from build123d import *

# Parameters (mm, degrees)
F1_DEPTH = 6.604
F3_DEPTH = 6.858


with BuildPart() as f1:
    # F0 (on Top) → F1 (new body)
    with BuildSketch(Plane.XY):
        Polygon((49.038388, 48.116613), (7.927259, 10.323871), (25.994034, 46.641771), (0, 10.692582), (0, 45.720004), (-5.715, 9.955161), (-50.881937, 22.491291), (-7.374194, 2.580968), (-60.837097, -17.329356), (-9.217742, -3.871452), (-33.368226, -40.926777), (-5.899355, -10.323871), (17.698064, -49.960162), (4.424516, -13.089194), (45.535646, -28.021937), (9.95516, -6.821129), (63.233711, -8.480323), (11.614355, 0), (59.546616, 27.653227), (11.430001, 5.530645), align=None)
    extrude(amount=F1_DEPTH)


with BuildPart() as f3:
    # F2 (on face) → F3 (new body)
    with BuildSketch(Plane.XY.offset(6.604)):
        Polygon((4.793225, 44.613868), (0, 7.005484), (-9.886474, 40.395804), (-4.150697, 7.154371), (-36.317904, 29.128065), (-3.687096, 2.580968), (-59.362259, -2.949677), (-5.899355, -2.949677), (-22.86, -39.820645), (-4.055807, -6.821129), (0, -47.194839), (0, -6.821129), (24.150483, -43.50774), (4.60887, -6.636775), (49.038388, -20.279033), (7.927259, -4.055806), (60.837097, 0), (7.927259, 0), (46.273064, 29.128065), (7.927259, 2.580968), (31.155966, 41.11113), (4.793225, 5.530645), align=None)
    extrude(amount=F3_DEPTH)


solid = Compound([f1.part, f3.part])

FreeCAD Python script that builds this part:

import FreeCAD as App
import Part
import Sketcher

V = App.Vector
Q = App.Units.Quantity

doc = App.newDocument("Part")
body = doc.addObject("PartDesign::Body", "Body")

# Sketch on XY plane
sketch1 = body.newObject("Sketcher::SketchObject", "Sketch")
sketch1.AttachmentSupport = (doc.getObject("XY_Plane"), [""])
sketch1.MapMode = "FlatFace"
sketch1.addGeometry([
    Part.LineSegment(V(49.038388, 48.116613, 0), V(7.927259, 10.323871, 0)),  # 0
    Part.LineSegment(V(7.927259, 10.323871, 0), V(25.994034, 46.641771, 0)),  # 1
    Part.LineSegment(V(25.994034, 46.641771, 0), V(0, 10.692582, 0)),  # 2
    Part.LineSegment(V(0, 10.692582, 0), V(0, 45.720004, 0)),  # 3
    Part.LineSegment(V(0, 45.720004, 0), V(-5.715, 9.955161, 0)),  # 4
    Part.LineSegment(V(-5.715, 9.955161, 0), V(-50.881937, 22.491291, 0)),  # 5
    Part.LineSegment(V(-50.881937, 22.491291, 0), V(-7.374194, 2.580968, 0)),  # 6
    Part.LineSegment(V(-7.374194, 2.580968, 0), V(-60.837097, -17.329356, 0)),  # 7
    Part.LineSegment(V(-60.837097, -17.329356, 0), V(-9.217742, -3.871452, 0)),  # 8
    Part.LineSegment(V(-9.217742, -3.871452, 0), V(-33.368226, -40.926777, 0)),  # 9
    Part.LineSegment(V(-33.368226, -40.926777, 0), V(-5.899355, -10.323871, 0)),  # 10
    Part.LineSegment(V(-5.899355, -10.323871, 0), V(17.698064, -49.960162, 0)),  # 11
    Part.LineSegment(V(17.698064, -49.960162, 0), V(4.424516, -13.089194, 0)),  # 12
    Part.LineSegment(V(4.424516, -13.089194, 0), V(45.535646, -28.021937, 0)),  # 13
    Part.LineSegment(V(45.535646, -28.021937, 0), V(9.95516, -6.821129, 0)),  # 14
    Part.LineSegment(V(9.95516, -6.821129, 0), V(63.233711, -8.480323, 0)),  # 15
    Part.LineSegment(V(63.233711, -8.480323, 0), V(11.614355, 0, 0)),  # 16
    Part.LineSegment(V(11.614355, 0, 0), V(59.546616, 27.653227, 0)),  # 17
    Part.LineSegment(V(59.546616, 27.653227, 0), V(11.430001, 5.530645, 0)),  # 18
    Part.LineSegment(V(11.430001, 5.530645, 0), V(49.038388, 48.116613, 0)),  # 19
], False)
sketch1.addConstraint([
    Sketcher.Constraint("Coincident", 0, 2, 1, 1),
    Sketcher.Constraint("Coincident", 1, 2, 2, 1),
    Sketcher.Constraint("Coincident", 2, 2, 3, 1),
    Sketcher.Constraint("Coincident", 3, 2, 4, 1),
    Sketcher.Constraint("Coincident", 4, 2, 5, 1),
    Sketcher.Constraint("Coincident", 5, 2, 6, 1),
    Sketcher.Constraint("Coincident", 6, 2, 7, 1),
    Sketcher.Constraint("Coincident", 7, 2, 8, 1),
    Sketcher.Constraint("Coincident", 8, 2, 9, 1),
    Sketcher.Constraint("Coincident", 9, 2, 10, 1),
    Sketcher.Constraint("Coincident", 10, 2, 11, 1),
    Sketcher.Constraint("Coincident", 11, 2, 12, 1),
    Sketcher.Constraint("Coincident", 12, 2, 13, 1),
    Sketcher.Constraint("Coincident", 13, 2, 14, 1),
    Sketcher.Constraint("Coincident", 14, 2, 15, 1),
    Sketcher.Constraint("Coincident", 15, 2, 16, 1),
    Sketcher.Constraint("Coincident", 16, 2, 17, 1),
    Sketcher.Constraint("Coincident", 17, 2, 18, 1),
    Sketcher.Constraint("Coincident", 18, 2, 19, 1),
    Sketcher.Constraint("Coincident", 19, 2, 0, 1),
    Sketcher.Constraint("Vertical", 3),
    Sketcher.Constraint("PointOnObject", 2, 2, -2),
    Sketcher.Constraint("PointOnObject", 16, 2, -1),
    Sketcher.Constraint("DistanceY", -1, 1, 3, 2, Q("1.8000002 in")),
    Sketcher.Constraint("DistanceX", -1, 1, 18, 2, Q("0.45 in")),
    Sketcher.Constraint("DistanceX", 4, 2, -1, 1, Q("0.225 in")),
    Sketcher.Constraint("DistanceX", 8, 2, 0, 2, Q("0.675 in")),
    Sketcher.Constraint("DistanceX", 10, 2, 13, 2, Q("2.025 in")),
    Sketcher.Constraint("DistanceY", 14, 2, 0, 2, Q("0.675 in")),
    Sketcher.Constraint("Distance", 19, Q("56.815099 mm")),
    Sketcher.Constraint("DistanceY", 0, 2, 1, 2, Q("36.3179 mm")),
    Sketcher.Constraint("DistanceX", 0, 2, 14, 2, Q("2.027901 mm")),
    Sketcher.Constraint("Distance", 0, Q("55.842782 mm")),
    Sketcher.Constraint("Distance", 1, Q("40.563508 mm")),
    Sketcher.Constraint("Distance", 2, Q("44.362529 mm")),
    Sketcher.Constraint("Distance", 8, Q("53.34485 mm")),
    Sketcher.Constraint("Distance", 11, Q("46.128882 mm")),
    Sketcher.Constraint("Distance", 12, Q("39.187439 mm")),
    Sketcher.Constraint("Distance", 15, Q("53.30438 mm")),
    Sketcher.Constraint("DistanceY", 3, 1, 3, 2, Q("35.027422 mm")),
    Sketcher.Constraint("DistanceX", -1, 1, 0, 2, Q("7.927259 mm")),
    Sketcher.Constraint("DistanceY", -1, 1, 4, 2, Q("9.955161 mm")),
    Sketcher.Constraint("DistanceY", -1, 1, 5, 2, Q("22.491291 mm")),
    Sketcher.Constraint("DistanceY", 10, 2, -1, 1, Q("10.323871 mm")),
    Sketcher.Constraint("DistanceY", 11, 2, -1, 1, Q("49.960162 mm")),
    Sketcher.Constraint("DistanceX", -1, 1, 15, 2, Q("63.233711 mm")),
    Sketcher.Constraint("DistanceX", 5, 2, 1, 2, Q("76.875971 mm")),
    Sketcher.Constraint("DistanceX", 7, 2, 5, 2, Q("9.95516 mm")),
    Sketcher.Constraint("DistanceY", 8, 2, 6, 2, Q("6.45242 mm")),
    Sketcher.Constraint("DistanceX", 7, 2, 9, 2, Q("27.468871 mm")),
    Sketcher.Constraint("DistanceY", 9, 2, 7, 2, Q("23.597421 mm")),
    Sketcher.Constraint("DistanceY", 9, 2, 4, 2, Q("50.881938 mm")),
    Sketcher.Constraint("DistanceX", 6, 2, 10, 2, Q("1.474839 mm")),
    Sketcher.Constraint("DistanceX", 9, 2, 11, 2, Q("51.06629 mm")),
    Sketcher.Constraint("DistanceX", 10, 2, 12, 2, Q("10.323871 mm")),
    Sketcher.Constraint("DistanceY", 13, 2, 0, 2, Q("38.345808 mm")),
    Sketcher.Constraint("DistanceX", 12, 2, 16, 2, Q("7.189839 mm")),
    Sketcher.Constraint("DistanceY", 15, 2, 17, 2, Q("36.13355 mm")),
    Sketcher.Constraint("DistanceX", 16, 2, 17, 2, Q("47.932261 mm")),
    Sketcher.Constraint("DistanceX", 19, 2, 17, 2, Q("10.508228 mm")),
])
pad1 = body.newObject("PartDesign::Pad", "Pad")
pad1.Profile = sketch1
pad1.Length = Q("0.26 in")
body2 = doc.addObject("PartDesign::Body", "Body001")

# Sketch on XY plane
sketch2 = body2.newObject("Sketcher::SketchObject", "Sketch001")
sketch2.AttachmentSupport = (doc.getObject("XY_Plane001"), [""])
sketch2.MapMode = "FlatFace"
sketch2.AttachmentOffset = App.Placement(V(0, 0, 0.26 * 25.4), App.Rotation())
sketch2.addGeometry([
    Part.LineSegment(V(4.793225, 44.613868, 0), V(0, 7.005484, 0)),  # 0
    Part.LineSegment(V(0, 7.005484, 0), V(-9.886474, 40.395804, 0)),  # 1
    Part.LineSegment(V(-9.886474, 40.395804, 0), V(-4.150697, 7.154371, 0)),  # 2
    Part.LineSegment(V(-4.150697, 7.154371, 0), V(-36.317904, 29.128065, 0)),  # 3
    Part.LineSegment(V(-36.317904, 29.128065, 0), V(-3.687096, 2.580968, 0)),  # 4
    Part.LineSegment(V(-3.687096, 2.580968, 0), V(-59.362259, -2.949677, 0)),  # 5
    Part.LineSegment(V(-59.362259, -2.949677, 0), V(-5.899355, -2.949677, 0)),  # 6
    Part.LineSegment(V(-5.899355, -2.949677, 0), V(-22.86, -39.820645, 0)),  # 7
    Part.LineSegment(V(-22.86, -39.820645, 0), V(-4.055807, -6.821129, 0)),  # 8
    Part.LineSegment(V(-4.055807, -6.821129, 0), V(0, -47.194839, 0)),  # 9
    Part.LineSegment(V(0, -47.194839, 0), V(0, -6.821129, 0)),  # 10
    Part.LineSegment(V(0, -6.821129, 0), V(24.150483, -43.50774, 0)),  # 11
    Part.LineSegment(V(24.150483, -43.50774, 0), V(4.60887, -6.636775, 0)),  # 12
    Part.LineSegment(V(4.60887, -6.636775, 0), V(49.038388, -20.279033, 0)),  # 13
    Part.LineSegment(V(49.038388, -20.279033, 0), V(7.927259, -4.055806, 0)),  # 14
    Part.LineSegment(V(7.927259, -4.055806, 0), V(60.837097, 0, 0)),  # 15
    Part.LineSegment(V(60.837097, 0, 0), V(7.927259, 0, 0)),  # 16
    Part.LineSegment(V(7.927259, 0, 0), V(46.273064, 29.128065, 0)),  # 17
    Part.LineSegment(V(46.273064, 29.128065, 0), V(7.927259, 2.580968, 0)),  # 18
    Part.LineSegment(V(7.927259, 2.580968, 0), V(31.155966, 41.11113, 0)),  # 19
    Part.LineSegment(V(31.155966, 41.11113, 0), V(4.793225, 5.530645, 0)),  # 20
    Part.LineSegment(V(4.793225, 5.530645, 0), V(4.793225, 44.613868, 0)),  # 21
], False)
sketch2.addConstraint([
    Sketcher.Constraint("Coincident", 0, 2, 1, 1),
    Sketcher.Constraint("Coincident", 1, 2, 2, 1),
    Sketcher.Constraint("Coincident", 2, 2, 3, 1),
    Sketcher.Constraint("Coincident", 3, 2, 4, 1),
    Sketcher.Constraint("Coincident", 4, 2, 5, 1),
    Sketcher.Constraint("Coincident", 5, 2, 6, 1),
    Sketcher.Constraint("Coincident", 6, 2, 7, 1),
    Sketcher.Constraint("Coincident", 7, 2, 8, 1),
    Sketcher.Constraint("Coincident", 8, 2, 9, 1),
    Sketcher.Constraint("Coincident", 9, 2, 10, 1),
    Sketcher.Constraint("Coincident", 10, 2, 11, 1),
    Sketcher.Constraint("Coincident", 11, 2, 12, 1),
    Sketcher.Constraint("Coincident", 12, 2, 13, 1),
    Sketcher.Constraint("Coincident", 13, 2, 14, 1),
    Sketcher.Constraint("Coincident", 14, 2, 15, 1),
    Sketcher.Constraint("Coincident", 15, 2, 16, 1),
    Sketcher.Constraint("Coincident", 16, 2, 17, 1),
    Sketcher.Constraint("Coincident", 17, 2, 18, 1),
    Sketcher.Constraint("Coincident", 18, 2, 19, 1),
    Sketcher.Constraint("Coincident", 19, 2, 20, 1),
    Sketcher.Constraint("Coincident", 20, 2, 21, 1),
    Sketcher.Constraint("Coincident", 21, 2, 0, 1),
    Sketcher.Constraint("Horizontal", 6),
    Sketcher.Constraint("Vertical", 10),
    Sketcher.Constraint("Horizontal", 16),
    Sketcher.Constraint("Vertical", 21),
    Sketcher.Constraint("PointOnObject", 0, 2, -2),
    Sketcher.Constraint("PointOnObject", 9, 2, -2),
    Sketcher.Constraint("PointOnObject", 15, 2, -1),
    Sketcher.Constraint("Horizontal", 8, 2, 10, 2),
    Sketcher.Constraint("Horizontal", 3, 2, 17, 2),
    Sketcher.Constraint("Horizontal", 4, 2, 18, 2),
    Sketcher.Constraint("Vertical", 14, 2, 16, 2),
    Sketcher.Constraint("Vertical", 16, 2, 18, 2),
    Sketcher.Constraint("DistanceX", 7, 2, -1, 1, Q("0.9 in")),
    Sketcher.Constraint("Distance", 12, Q("41.729398 mm")),
    Sketcher.Constraint("DistanceY", 10, 1, 10, 2, Q("40.37371 mm")),
    Sketcher.Constraint("DistanceX", 2, 2, 4, 2, Q("0.463601 mm")),
    Sketcher.Constraint("DistanceY", 8, 2, 2, 2, Q("13.9755 mm")),
    Sketcher.Constraint("DistanceY", 9, 2, 11, 2, Q("3.687099 mm")),
    Sketcher.Constraint("DistanceY", 12, 2, 6, 2, Q("3.687098 mm")),
    Sketcher.Constraint("DistanceX", 1, 2, 21, 2, Q("14.679699 mm")),
    Sketcher.Constraint("Distance", 1, Q("34.823208 mm")),
    Sketcher.Constraint("Distance", 4, Q("42.065639 mm")),
    Sketcher.Constraint("Distance", 5, Q("55.94919 mm")),
    Sketcher.Constraint("Distance", 7, Q("40.584871 mm")),
    Sketcher.Constraint("Distance", 15, Q("53.065059 mm")),
    Sketcher.Constraint("DistanceX", 6, 1, 6, 2, Q("53.462904 mm")),
    Sketcher.Constraint("DistanceX", 16, 2, 16, 1, Q("52.909838 mm")),
    Sketcher.Constraint("DistanceY", 21, 1, 21, 2, Q("39.083223 mm")),
    Sketcher.Constraint("DistanceY", -1, 1, 2, 2, Q("7.154371 mm")),
    Sketcher.Constraint("DistanceX", 5, 2, -1, 1, Q("59.362259 mm")),
    Sketcher.Constraint("DistanceX", -1, 1, 12, 2, Q("4.60887 mm")),
    Sketcher.Constraint("DistanceX", -1, 1, 14, 2, Q("7.927259 mm")),
    Sketcher.Constraint("DistanceY", -1, 1, 19, 2, Q("41.11113 mm")),
    Sketcher.Constraint("DistanceY", 0, 2, 1, 2, Q("33.39032 mm")),
    Sketcher.Constraint("DistanceX", 3, 2, 1, 2, Q("26.43143 mm")),
    Sketcher.Constraint("DistanceY", 3, 2, 1, 2, Q("11.267739 mm")),
    Sketcher.Constraint("DistanceX", 3, 2, 4, 2, Q("32.630808 mm")),
    Sketcher.Constraint("DistanceX", 6, 2, 8, 2, Q("1.843548 mm")),
    Sketcher.Constraint("DistanceX", 8, 2, 11, 2, Q("28.20629 mm")),
    Sketcher.Constraint("DistanceX", 12, 2, 13, 2, Q("44.429518 mm")),
    Sketcher.Constraint("DistanceX", 1, 2, 19, 2, Q("41.04244 mm")),
    Sketcher.Constraint("DistanceY", 20, 2, 0, 2, Q("1.474839 mm")),
    Sketcher.Constraint("Distance", 13, Q("46.476804 mm")),
    Sketcher.Constraint("Distance", 17, Q("48.154386 mm")),
])
pad2 = body2.newObject("PartDesign::Pad", "Pad001")
pad2.Profile = sketch2
pad2.Length = Q("0.27 in")

doc.recompute()
